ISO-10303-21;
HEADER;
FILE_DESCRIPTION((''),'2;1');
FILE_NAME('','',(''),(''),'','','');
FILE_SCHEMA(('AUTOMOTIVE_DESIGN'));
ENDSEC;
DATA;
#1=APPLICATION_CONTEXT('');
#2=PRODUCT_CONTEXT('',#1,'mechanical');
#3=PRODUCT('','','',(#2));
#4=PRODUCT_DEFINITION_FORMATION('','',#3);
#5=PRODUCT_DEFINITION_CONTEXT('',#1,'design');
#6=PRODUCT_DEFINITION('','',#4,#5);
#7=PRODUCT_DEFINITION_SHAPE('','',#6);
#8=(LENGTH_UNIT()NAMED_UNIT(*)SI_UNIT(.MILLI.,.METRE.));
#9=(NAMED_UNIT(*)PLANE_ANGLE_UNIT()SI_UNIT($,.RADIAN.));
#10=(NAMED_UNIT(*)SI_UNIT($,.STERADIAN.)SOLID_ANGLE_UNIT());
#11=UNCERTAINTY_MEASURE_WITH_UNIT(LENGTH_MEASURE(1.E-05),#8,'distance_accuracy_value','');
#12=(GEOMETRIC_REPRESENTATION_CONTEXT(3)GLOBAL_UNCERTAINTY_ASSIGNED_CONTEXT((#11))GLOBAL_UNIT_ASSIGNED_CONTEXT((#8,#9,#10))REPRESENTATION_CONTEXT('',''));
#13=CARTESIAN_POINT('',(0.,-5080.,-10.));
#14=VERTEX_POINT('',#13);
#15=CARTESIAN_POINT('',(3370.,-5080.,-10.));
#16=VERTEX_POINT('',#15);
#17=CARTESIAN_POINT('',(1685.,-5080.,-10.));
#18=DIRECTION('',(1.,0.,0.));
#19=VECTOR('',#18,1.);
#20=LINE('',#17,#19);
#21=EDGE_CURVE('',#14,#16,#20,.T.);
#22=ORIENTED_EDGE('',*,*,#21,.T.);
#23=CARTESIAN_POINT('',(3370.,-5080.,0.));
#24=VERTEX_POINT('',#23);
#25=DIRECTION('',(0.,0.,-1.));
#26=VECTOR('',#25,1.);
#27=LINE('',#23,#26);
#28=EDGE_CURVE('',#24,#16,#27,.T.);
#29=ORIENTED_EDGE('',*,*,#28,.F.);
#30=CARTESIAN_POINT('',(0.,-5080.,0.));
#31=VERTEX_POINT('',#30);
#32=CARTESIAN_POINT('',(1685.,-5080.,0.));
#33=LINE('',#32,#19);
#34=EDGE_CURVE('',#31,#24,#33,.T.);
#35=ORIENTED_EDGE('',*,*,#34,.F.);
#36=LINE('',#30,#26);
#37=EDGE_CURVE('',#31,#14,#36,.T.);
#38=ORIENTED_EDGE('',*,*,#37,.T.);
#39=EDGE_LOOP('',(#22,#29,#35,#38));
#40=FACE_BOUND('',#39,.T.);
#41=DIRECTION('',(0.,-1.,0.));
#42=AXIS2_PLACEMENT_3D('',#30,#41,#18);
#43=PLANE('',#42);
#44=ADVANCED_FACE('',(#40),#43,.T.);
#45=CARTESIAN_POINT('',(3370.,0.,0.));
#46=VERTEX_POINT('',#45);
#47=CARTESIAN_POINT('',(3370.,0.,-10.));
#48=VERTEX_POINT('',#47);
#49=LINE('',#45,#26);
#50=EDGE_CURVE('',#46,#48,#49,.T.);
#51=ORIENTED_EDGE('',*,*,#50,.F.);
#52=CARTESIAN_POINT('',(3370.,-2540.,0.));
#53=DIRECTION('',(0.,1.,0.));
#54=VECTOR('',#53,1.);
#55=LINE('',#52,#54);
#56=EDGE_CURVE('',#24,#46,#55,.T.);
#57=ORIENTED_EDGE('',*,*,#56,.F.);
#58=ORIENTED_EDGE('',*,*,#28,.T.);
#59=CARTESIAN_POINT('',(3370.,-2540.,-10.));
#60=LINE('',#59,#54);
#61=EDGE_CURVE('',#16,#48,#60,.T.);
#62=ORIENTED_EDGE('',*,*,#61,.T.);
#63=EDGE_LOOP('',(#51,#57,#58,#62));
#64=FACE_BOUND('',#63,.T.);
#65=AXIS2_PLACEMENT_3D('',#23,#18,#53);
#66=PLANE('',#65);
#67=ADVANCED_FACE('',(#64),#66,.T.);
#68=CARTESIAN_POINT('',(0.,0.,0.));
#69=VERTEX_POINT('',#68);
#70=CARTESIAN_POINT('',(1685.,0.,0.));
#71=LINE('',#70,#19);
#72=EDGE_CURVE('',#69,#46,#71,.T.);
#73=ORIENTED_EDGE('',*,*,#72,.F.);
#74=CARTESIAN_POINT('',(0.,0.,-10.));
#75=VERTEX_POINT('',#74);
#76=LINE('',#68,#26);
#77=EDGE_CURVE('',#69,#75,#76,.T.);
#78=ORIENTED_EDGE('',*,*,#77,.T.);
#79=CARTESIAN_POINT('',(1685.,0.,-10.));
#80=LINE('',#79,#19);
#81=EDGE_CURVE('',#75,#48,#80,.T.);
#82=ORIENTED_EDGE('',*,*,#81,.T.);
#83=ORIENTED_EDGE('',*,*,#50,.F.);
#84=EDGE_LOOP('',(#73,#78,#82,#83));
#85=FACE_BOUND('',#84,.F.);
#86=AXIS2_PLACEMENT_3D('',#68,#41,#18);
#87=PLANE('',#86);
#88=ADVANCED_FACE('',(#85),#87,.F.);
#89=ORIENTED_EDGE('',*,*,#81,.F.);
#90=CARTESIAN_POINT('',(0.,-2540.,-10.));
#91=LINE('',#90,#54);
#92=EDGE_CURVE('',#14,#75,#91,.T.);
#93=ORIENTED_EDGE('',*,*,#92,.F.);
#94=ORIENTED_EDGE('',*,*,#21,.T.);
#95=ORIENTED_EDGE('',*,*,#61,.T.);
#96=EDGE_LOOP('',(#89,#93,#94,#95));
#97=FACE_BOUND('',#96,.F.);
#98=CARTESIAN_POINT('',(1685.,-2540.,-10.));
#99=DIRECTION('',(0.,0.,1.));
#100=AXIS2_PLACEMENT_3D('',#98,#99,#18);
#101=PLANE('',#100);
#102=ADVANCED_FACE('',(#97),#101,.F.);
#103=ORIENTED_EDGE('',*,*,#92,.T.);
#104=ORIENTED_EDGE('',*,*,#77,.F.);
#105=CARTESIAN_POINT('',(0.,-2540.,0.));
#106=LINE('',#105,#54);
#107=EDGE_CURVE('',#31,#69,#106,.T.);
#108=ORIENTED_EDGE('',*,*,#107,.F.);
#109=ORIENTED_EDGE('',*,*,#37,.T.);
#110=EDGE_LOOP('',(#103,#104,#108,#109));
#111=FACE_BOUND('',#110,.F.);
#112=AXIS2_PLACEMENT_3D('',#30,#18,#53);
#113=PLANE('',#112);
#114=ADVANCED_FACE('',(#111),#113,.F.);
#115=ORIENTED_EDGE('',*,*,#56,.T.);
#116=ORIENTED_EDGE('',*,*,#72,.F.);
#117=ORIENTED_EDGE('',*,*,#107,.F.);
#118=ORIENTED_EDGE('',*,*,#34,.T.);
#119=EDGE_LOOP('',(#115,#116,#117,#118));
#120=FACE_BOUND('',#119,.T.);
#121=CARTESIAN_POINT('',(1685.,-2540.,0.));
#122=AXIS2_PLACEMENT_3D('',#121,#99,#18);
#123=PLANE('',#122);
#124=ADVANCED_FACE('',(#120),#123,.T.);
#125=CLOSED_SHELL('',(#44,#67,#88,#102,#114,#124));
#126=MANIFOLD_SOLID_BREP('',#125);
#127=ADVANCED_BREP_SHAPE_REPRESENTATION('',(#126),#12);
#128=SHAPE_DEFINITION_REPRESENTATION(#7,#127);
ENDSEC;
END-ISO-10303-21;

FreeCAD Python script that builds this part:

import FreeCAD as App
import Part
import Sketcher
from FreeCAD import Vector
Q = App.Units.Quantity

doc = App.newDocument("Part")
body = doc.addObject("PartDesign::Body", "Body")

# Sketch on XY plane
sketch1 = body.newObject("Sketcher::SketchObject", "Sketch")
sketch1.AttachmentSupport = (doc.getObject("XY_Plane"), [""])
sketch1.MapMode = "FlatFace"
sketch1.addGeometry([
    Part.LineSegment(Vector(0, 0, 0), Vector(0, -5080, 0)),
    Part.LineSegment(Vector(0, -5080, 0), Vector(3370, -5080, 0)),
    Part.LineSegment(Vector(3370, -5080, 0), Vector(3370, 0, 0)),
    Part.LineSegment(Vector(3370, 0, 0), Vector(0, 0, 0)),
], False)
sketch1.addConstraint([
    Sketcher.Constraint("Coincident", 0, 2, 1, 1),
    Sketcher.Constraint("Coincident", 1, 2, 2, 1),
    Sketcher.Constraint("Coincident", 2, 2, 3, 1),
    Sketcher.Constraint("Coincident", 3, 2, 0, 1),
    Sketcher.Constraint("Vertical", 0),
    Sketcher.Constraint("Horizontal", 1),
    Sketcher.Constraint("Vertical", 2),
    Sketcher.Constraint("Horizontal", 3),
    Sketcher.Constraint("Coincident", 3, 2, -1, 1),
    Sketcher.Constraint("DistanceX", 1, 1, 1, 2, Q("3370 mm")),
    Sketcher.Constraint("DistanceY", 0, 2, 0, 1, Q("5080 mm")),
])
pad1 = body.newObject("PartDesign::Pad", "Pad")
pad1.Profile = sketch1
pad1.Length = 10
pad1.Reversed = True

doc.recompute()
